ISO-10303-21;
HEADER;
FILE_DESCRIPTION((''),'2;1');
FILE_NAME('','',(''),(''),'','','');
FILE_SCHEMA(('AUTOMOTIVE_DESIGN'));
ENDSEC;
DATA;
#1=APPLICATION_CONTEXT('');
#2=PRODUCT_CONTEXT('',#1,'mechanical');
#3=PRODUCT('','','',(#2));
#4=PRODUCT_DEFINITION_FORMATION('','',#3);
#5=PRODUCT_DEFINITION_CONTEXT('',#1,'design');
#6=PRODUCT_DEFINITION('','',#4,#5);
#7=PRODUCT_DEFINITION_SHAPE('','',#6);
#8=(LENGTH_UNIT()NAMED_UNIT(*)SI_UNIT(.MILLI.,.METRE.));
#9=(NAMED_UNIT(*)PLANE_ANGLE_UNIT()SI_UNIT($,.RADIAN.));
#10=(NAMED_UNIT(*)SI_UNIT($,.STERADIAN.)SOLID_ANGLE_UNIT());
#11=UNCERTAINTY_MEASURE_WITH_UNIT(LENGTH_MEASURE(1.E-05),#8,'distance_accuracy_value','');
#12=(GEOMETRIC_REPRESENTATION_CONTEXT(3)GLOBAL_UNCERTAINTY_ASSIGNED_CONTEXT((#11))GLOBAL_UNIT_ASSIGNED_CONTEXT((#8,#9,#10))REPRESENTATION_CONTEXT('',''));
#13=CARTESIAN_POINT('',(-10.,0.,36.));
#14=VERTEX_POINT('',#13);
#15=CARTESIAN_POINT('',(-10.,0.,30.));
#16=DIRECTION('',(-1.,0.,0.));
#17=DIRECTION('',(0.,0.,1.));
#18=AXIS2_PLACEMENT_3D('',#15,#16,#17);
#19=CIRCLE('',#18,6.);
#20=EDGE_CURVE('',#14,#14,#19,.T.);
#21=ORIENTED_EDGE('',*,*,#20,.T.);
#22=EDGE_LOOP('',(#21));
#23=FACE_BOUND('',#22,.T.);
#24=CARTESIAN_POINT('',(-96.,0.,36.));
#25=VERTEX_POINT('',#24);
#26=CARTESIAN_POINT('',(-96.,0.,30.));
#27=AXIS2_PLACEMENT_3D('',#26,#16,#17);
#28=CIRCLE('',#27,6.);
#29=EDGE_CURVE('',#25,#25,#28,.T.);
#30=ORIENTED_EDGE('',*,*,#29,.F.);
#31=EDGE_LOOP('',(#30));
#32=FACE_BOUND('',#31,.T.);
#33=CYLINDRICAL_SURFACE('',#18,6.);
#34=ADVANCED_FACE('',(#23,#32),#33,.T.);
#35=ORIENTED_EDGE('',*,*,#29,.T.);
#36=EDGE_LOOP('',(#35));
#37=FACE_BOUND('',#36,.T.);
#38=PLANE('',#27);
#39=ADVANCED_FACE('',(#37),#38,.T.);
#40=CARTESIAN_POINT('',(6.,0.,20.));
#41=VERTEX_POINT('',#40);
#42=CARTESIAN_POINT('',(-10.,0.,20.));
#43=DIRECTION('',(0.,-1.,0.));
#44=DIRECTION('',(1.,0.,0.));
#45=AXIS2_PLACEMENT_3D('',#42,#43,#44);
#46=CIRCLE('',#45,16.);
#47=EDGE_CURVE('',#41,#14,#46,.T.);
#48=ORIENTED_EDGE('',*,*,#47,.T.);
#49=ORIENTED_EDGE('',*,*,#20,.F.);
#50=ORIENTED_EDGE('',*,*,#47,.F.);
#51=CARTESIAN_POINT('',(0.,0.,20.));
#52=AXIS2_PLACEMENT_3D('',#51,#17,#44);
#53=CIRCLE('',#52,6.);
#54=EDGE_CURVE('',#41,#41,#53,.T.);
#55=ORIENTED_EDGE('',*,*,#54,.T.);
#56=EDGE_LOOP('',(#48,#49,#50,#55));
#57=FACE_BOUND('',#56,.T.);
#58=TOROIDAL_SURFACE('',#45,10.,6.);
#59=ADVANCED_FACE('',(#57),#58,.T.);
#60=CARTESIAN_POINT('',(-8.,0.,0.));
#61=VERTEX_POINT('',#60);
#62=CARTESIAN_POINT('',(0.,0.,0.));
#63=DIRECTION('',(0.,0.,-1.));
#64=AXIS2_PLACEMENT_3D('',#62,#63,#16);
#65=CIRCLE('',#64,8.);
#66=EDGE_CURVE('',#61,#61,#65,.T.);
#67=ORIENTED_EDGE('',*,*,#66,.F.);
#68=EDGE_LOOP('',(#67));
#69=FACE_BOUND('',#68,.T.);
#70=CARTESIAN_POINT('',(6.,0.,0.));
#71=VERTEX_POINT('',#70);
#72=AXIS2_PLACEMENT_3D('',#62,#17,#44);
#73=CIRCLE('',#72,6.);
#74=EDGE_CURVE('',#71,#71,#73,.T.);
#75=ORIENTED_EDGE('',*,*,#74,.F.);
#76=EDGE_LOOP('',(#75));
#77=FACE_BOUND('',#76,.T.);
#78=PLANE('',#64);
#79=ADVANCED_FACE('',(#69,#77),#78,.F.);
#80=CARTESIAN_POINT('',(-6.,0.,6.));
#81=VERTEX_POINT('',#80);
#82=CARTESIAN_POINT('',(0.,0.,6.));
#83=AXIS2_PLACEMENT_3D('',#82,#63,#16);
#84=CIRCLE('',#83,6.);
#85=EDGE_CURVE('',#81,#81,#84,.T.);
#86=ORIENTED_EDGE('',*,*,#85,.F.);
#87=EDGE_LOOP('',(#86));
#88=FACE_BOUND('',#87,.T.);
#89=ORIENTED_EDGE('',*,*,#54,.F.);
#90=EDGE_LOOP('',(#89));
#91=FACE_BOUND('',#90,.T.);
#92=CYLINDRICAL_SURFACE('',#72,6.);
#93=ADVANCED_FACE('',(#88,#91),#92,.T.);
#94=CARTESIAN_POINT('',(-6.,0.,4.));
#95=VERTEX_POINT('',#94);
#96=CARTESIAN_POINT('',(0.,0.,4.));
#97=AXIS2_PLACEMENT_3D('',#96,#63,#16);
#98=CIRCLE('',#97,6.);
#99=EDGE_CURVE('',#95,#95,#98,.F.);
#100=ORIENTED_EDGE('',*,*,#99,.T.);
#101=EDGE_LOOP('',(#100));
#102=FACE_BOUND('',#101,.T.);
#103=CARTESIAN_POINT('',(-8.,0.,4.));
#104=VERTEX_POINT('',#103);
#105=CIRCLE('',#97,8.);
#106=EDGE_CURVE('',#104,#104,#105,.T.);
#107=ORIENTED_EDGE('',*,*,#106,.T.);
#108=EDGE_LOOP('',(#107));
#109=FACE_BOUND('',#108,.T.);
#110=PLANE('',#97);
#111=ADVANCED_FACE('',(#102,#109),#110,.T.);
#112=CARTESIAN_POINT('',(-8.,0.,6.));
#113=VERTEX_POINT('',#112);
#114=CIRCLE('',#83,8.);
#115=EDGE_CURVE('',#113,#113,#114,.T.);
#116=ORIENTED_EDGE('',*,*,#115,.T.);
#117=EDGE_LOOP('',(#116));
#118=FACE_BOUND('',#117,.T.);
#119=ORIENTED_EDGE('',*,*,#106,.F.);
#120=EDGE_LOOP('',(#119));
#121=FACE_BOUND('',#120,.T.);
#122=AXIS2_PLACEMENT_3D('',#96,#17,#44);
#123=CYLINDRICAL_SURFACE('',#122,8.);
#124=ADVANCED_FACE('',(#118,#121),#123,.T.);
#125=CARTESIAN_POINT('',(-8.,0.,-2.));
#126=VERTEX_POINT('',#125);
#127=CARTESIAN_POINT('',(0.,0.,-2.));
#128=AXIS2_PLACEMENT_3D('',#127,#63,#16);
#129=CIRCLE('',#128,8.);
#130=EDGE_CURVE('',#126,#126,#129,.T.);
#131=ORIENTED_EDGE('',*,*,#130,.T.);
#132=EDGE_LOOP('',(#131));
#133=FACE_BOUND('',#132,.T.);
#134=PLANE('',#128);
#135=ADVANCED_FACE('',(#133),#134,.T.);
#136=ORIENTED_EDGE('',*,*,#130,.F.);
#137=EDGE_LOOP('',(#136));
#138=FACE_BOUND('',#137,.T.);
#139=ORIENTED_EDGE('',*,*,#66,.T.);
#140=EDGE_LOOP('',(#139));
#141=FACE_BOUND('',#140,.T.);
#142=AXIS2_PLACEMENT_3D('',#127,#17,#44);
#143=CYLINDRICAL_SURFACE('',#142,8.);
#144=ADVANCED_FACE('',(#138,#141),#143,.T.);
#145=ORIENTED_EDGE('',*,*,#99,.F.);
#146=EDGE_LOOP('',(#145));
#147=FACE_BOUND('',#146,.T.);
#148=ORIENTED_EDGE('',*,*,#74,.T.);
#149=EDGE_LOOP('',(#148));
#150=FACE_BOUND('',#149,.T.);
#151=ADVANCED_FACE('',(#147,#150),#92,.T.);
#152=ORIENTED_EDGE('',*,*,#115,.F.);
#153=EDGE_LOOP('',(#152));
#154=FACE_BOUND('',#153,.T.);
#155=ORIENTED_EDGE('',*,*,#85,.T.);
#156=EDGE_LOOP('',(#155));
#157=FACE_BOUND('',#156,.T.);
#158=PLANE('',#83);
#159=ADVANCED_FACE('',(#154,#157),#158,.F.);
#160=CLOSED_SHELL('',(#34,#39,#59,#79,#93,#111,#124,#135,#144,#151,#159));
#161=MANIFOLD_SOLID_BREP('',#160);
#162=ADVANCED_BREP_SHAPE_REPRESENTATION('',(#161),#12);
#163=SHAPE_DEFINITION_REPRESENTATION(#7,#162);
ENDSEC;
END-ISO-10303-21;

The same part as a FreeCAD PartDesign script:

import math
import FreeCAD as App
import Part
import Sketcher
from FreeCAD import Vector
Q = App.Units.Quantity

doc = App.newDocument("Part")
body = doc.addObject("PartDesign::Body", "Body")

sketch1 = doc.addObject("Sketcher::SketchObject", "Sketch")
body.addObject(sketch1)
sketch1.AttachmentSupport = (doc.XY_Plane, [""])
sketch1.MapMode = "FlatFace"
sketch1.addGeometry(Part.Circle(Vector(0, 0, 0), Vector(0, 0, 1), 6), False)
sketch1.addConstraint([
    Sketcher.Constraint("Coincident", 0, 3, -1, 1),
    Sketcher.Constraint("Diameter", 0, Q("12 mm")),
])

sketch2 = doc.addObject("Sketcher::SketchObject", "Sketch001")
body.addObject(sketch2)
sketch2.AttachmentSupport = (doc.XZ_Plane, [""])
sketch2.MapMode = "FlatFace"
sketch2.addGeometry([
    Part.LineSegment(Vector(0, 0, 0), Vector(0, 20, 0)),
    Part.ArcOfCircle(Part.Circle(Vector(-10, 20, 0), Vector(0, 0, 1), 10), math.radians(0), math.radians(90)),
    Part.LineSegment(Vector(-10, 30, 0), Vector(-96, 30, 0)),
], False)
sketch2.addConstraint([
    Sketcher.Constraint("Tangent", 0, 2, 1, 1),
    Sketcher.Constraint("Tangent", 1, 2, 2, 1),
    Sketcher.Constraint("Vertical", 0),
    Sketcher.Constraint("Horizontal", 2),
    Sketcher.Constraint("Coincident", 0, 1, -1, 1),
    Sketcher.Constraint("Radius", 1, Q("10 mm")),
    Sketcher.Constraint("DistanceX", 2, 2, 2, 1, Q("86 mm")),
    Sketcher.Constraint("DistanceY", 0, 1, 0, 2, Q("20 mm")),
])
doc.recompute()

additivepipe = doc.addObject("PartDesign::AdditivePipe", "AdditivePipe")
body.addObject(additivepipe)
additivepipe.Profile = sketch1
additivepipe.Spine = (sketch2, ["Edge1", "Edge2", "Edge3"])

sketch3 = doc.addObject("Sketcher::SketchObject", "Sketch002")
body.addObject(sketch3)
sketch3.AttachmentSupport = (doc.XY_Plane, [""])
sketch3.MapMode = "FlatFace"
sketch3.addGeometry(Part.Circle(Vector(0, 0, 0), Vector(0, 0, 1), 8), False)
sketch3.addConstraint([
    Sketcher.Constraint("Coincident", 0, 3, -1, 1),
    Sketcher.Constraint("Diameter", 0, Q("16 mm")),
])
pad1 = doc.addObject("PartDesign::Pad", "Pad")
body.addObject(pad1)
pad1.Profile = sketch3
pad1.Length = 2
pad1.Reversed = True

sketch4 = doc.addObject("Sketcher::SketchObject", "Sketch003")
body.addObject(sketch4)
sketch4.AttachmentSupport = (doc.XY_Plane, [""])
sketch4.MapMode = "FlatFace"
sketch4.AttachmentOffset = App.Placement(Vector(0, 0, 6), App.Rotation())
sketch4.addGeometry([
    Part.Circle(Vector(0, 0, 0), Vector(0, 0, 1), 8),
    Part.Circle(Vector(0, 0, 0), Vector(0, 0, 1), 6),
], False)
sketch4.addConstraint([
    Sketcher.Constraint("Coincident", 0, 3, -1, 1),
    Sketcher.Constraint("Coincident", 1, 3, -1, 1),
    Sketcher.Constraint("Diameter", 0, Q("16 mm")),
    Sketcher.Constraint("Diameter", 1, Q("12 mm")),
])
pad2 = doc.addObject("PartDesign::Pad", "Pad001")
body.addObject(pad2)
pad2.Profile = sketch4
pad2.Length = 2
pad2.Reversed = True

doc.recompute()
